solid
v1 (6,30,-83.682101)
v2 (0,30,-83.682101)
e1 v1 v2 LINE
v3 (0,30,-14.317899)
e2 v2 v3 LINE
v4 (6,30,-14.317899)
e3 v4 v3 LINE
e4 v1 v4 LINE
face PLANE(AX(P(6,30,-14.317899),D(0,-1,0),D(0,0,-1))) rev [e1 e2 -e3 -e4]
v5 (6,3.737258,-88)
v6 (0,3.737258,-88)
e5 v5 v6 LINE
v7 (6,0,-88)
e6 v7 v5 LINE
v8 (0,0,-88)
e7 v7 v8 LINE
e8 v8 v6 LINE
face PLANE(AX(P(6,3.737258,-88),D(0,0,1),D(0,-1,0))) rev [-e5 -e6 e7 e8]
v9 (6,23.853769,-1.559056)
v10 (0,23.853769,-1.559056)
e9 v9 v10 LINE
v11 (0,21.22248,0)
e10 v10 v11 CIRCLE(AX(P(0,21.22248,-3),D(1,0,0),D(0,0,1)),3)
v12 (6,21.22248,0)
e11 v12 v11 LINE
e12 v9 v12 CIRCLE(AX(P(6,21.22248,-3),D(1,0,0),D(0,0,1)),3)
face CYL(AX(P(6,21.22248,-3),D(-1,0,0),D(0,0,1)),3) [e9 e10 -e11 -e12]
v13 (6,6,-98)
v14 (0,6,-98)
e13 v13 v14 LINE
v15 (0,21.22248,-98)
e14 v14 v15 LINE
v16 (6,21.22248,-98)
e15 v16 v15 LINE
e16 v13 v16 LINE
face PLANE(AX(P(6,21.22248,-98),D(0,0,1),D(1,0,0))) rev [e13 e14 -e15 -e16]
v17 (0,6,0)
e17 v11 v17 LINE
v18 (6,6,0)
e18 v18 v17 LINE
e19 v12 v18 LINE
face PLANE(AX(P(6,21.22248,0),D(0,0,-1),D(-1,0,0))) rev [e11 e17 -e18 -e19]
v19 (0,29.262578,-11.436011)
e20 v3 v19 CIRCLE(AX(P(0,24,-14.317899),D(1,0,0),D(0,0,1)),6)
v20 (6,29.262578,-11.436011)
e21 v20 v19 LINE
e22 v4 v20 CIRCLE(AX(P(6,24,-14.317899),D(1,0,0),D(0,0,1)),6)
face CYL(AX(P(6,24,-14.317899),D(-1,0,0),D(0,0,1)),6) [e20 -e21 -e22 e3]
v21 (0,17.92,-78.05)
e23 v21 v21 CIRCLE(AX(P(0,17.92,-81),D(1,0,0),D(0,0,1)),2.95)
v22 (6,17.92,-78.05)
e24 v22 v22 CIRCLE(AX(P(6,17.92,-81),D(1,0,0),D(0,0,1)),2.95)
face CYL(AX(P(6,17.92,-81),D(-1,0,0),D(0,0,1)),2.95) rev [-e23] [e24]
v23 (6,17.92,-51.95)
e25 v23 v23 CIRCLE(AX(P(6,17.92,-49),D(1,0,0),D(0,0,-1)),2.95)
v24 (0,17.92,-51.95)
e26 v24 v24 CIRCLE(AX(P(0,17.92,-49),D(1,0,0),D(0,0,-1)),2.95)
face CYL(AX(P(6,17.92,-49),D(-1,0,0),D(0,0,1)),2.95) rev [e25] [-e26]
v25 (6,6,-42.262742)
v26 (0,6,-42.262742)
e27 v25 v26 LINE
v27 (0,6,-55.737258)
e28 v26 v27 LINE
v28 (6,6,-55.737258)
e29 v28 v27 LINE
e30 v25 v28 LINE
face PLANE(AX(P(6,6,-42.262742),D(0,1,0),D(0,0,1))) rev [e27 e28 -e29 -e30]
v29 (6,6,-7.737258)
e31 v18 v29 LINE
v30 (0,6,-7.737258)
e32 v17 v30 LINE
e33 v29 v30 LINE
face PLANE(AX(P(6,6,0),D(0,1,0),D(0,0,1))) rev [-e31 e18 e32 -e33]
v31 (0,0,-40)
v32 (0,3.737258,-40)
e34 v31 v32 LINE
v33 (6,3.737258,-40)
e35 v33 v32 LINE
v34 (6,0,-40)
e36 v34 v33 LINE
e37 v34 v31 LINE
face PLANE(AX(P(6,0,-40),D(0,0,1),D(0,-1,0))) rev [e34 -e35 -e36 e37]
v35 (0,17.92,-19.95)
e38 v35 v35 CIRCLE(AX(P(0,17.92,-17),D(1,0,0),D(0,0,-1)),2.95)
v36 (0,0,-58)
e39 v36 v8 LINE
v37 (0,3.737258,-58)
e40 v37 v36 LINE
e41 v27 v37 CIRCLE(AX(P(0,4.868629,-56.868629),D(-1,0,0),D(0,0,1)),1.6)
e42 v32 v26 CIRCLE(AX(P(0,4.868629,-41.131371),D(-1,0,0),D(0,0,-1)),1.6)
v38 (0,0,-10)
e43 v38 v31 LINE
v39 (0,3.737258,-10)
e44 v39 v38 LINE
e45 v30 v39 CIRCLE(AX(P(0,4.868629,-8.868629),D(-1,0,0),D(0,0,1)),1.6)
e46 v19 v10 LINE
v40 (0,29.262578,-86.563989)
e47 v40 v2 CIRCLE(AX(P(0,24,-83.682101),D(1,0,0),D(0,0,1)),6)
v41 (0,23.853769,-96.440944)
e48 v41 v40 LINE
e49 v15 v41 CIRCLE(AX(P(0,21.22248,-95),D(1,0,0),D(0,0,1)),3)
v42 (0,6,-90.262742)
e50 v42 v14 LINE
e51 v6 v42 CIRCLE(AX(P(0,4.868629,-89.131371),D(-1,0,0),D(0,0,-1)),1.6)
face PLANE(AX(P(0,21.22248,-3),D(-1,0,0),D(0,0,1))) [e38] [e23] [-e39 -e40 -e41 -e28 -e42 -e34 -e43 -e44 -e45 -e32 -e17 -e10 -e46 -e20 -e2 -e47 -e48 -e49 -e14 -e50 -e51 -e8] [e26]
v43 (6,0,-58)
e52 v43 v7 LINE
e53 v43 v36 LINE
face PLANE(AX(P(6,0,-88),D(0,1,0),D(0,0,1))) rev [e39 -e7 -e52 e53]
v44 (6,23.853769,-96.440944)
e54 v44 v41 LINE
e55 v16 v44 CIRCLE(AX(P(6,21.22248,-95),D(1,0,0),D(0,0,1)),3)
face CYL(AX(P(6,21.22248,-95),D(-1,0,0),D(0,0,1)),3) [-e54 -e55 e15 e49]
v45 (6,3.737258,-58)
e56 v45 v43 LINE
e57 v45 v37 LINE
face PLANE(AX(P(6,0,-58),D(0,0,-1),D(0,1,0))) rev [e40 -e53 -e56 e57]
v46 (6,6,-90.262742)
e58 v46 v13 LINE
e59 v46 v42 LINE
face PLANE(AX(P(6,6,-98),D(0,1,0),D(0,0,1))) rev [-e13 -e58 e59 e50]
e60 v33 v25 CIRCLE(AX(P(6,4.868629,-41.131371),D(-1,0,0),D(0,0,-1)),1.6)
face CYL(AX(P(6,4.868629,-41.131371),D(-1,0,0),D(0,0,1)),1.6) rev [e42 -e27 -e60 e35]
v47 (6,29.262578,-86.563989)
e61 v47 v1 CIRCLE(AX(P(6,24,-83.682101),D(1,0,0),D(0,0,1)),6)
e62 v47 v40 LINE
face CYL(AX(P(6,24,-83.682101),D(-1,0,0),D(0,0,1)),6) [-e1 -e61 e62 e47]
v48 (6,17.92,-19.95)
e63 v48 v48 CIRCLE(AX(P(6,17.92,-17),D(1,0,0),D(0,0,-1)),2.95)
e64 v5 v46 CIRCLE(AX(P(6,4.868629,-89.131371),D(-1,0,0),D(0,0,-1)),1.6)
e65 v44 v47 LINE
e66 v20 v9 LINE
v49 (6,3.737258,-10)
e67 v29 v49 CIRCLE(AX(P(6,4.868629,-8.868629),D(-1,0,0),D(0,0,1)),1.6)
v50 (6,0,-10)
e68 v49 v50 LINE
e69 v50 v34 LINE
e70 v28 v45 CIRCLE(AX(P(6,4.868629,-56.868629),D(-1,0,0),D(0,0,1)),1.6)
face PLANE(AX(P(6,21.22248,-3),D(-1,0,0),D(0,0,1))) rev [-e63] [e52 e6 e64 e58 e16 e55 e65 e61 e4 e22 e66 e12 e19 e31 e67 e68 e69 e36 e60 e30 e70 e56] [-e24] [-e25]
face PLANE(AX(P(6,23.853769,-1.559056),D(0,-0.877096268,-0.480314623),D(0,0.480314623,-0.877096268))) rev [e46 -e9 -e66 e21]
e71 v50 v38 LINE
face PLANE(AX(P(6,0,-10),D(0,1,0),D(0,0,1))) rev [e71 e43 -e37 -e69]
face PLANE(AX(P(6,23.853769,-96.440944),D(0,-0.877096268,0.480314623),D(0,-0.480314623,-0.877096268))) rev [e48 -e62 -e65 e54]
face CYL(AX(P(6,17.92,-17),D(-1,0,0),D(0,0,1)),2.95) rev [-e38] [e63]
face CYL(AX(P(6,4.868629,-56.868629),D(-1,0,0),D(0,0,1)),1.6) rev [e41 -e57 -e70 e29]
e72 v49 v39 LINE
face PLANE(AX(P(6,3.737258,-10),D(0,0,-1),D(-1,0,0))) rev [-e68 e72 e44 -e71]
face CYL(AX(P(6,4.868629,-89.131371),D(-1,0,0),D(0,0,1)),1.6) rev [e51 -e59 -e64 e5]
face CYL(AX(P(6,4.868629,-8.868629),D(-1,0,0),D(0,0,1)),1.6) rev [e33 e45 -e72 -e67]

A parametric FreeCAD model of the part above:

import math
import FreeCAD as App
import Part
import Sketcher
from FreeCAD import Vector

doc = App.newDocument("Part")
params = doc.addObject("Spreadsheet::Sheet", "Params")
for row, (alias, value) in enumerate([
    ("sketch1_radius", "3 mm"),
    ("sketch1_radius2", "6 mm"),
    ("sketch1_diameter", "5.9 mm"),
    ("sketch1_radius3", "1.6 mm"),
    ("sketch1_height", "30 mm"),
    ("pad1_length", "6 mm"),
], start=1):
    params.set(f"A{row}", alias)
    params.set(f"B{row}", "=" + value)
    params.setAlias(f"B{row}", alias)

body = doc.addObject("PartDesign::Body", "Body")

# Sketch on YZ plane
sketch1 = doc.addObject("Sketcher::SketchObject", "Sketch")
body.addObject(sketch1)
sketch1.AttachmentSupport = (doc.YZ_Plane, [""])
sketch1.MapMode = "FlatFace"
sketch1.addGeometry(Part.LineSegment(Vector(29.3, -11.4, 0), Vector(23.9, -1.6, 0)), False)
sketch1.addGeometry(Part.ArcOfCircle(Part.Circle(Vector(21.2, -3, 0), Vector(0, 0, 1), 3), math.radians(29), math.radians(90)), False)
sketch1.addGeometry(Part.LineSegment(Vector(21.2, 0, 0), Vector(6, 0, 0)), False)
sketch1.addGeometry(Part.LineSegment(Vector(6, 0, 0), Vector(6, -7.7, 0)), False)
sketch1.addGeometry(Part.ArcOfCircle(Part.Circle(Vector(4.9, -8.9, 0), Vector(0, 0, 1), 1.6), math.radians(-135), math.radians(45)), False)
sketch1.addGeometry(Part.LineSegment(Vector(3.7, -10, 0), Vector(0, -10, 0)), False)
sketch1.addGeometry(Part.LineSegment(Vector(0, -10, 0), Vector(0, -40, 0)), False)
sketch1.addGeometry(Part.LineSegment(Vector(0, -40, 0), Vector(3.7, -40, 0)), False)
sketch1.addGeometry(Part.ArcOfCircle(Part.Circle(Vector(4.9, -41.1, 0), Vector(0, 0, 1), 1.6), math.radians(-45), math.radians(135)), False)
sketch1.addGeometry(Part.LineSegment(Vector(6, -42.3, 0), Vector(6, -55.7, 0)), False)
sketch1.addGeometry(Part.ArcOfCircle(Part.Circle(Vector(4.9, -56.9, 0), Vector(0, 0, 1), 1.6), math.radians(-135), math.radians(45)), False)
sketch1.addGeometry(Part.LineSegment(Vector(3.7, -58, 0), Vector(0, -58, 0)), False)
sketch1.addGeometry(Part.LineSegment(Vector(0, -58, 0), Vector(0, -88, 0)), False)
sketch1.addGeometry(Part.LineSegment(Vector(0, -88, 0), Vector(3.7, -88, 0)), False)
sketch1.addGeometry(Part.ArcOfCircle(Part.Circle(Vector(4.9, -89.1, 0), Vector(0, 0, 1), 1.6), math.radians(-45), math.radians(135)), False)
sketch1.addGeometry(Part.LineSegment(Vector(6, -90.3, 0), Vector(6, -98, 0)), False)
sketch1.addGeometry(Part.LineSegment(Vector(6, -98, 0), Vector(21.2, -98, 0)), False)
sketch1.addGeometry(Part.ArcOfCircle(Part.Circle(Vector(21.2, -95, 0), Vector(0, 0, 1), 3), math.radians(-90), math.radians(-29)), False)
sketch1.addGeometry(Part.LineSegment(Vector(23.9, -96.4, 0), Vector(29.3, -86.6, 0)), False)
sketch1.addGeometry(Part.ArcOfCircle(Part.Circle(Vector(24, -83.7, 0), Vector(0, 0, 1), 6), math.radians(-29), math.radians(0)), False)
sketch1.addGeometry(Part.LineSegment(Vector(30, -83.7, 0), Vector(30, -14.3, 0)), False)
sketch1.addGeometry(Part.ArcOfCircle(Part.Circle(Vector(24, -14.3, 0), Vector(0, 0, 1), 6), math.radians(0), math.radians(29)), False)
sketch1.addGeometry(Part.Circle(Vector(17.9, -81, 0), Vector(0, 0, 1), 3), False)
sketch1.addGeometry(Part.Circle(Vector(17.9, -49, 0), Vector(0, 0, 1), 3), False)
sketch1.addGeometry(Part.Circle(Vector(17.9, -17, 0), Vector(0, 0, 1), 3), False)
sketch1.addConstraint(Sketcher.Constraint("Tangent", 0, 2, 1, 1))
sketch1.addConstraint(Sketcher.Constraint("Tangent", 1, 2, 2, 1))
sketch1.addConstraint(Sketcher.Constraint("Coincident", 2, 2, 3, 1))
sketch1.addConstraint(Sketcher.Constraint("Coincident", 3, 2, 4, 2))
sketch1.addConstraint(Sketcher.Constraint("Coincident", 4, 1, 5, 1))
sketch1.addConstraint(Sketcher.Constraint("Coincident", 5, 2, 6, 1))
sketch1.addConstraint(Sketcher.Constraint("Coincident", 6, 2, 7, 1))
sketch1.addConstraint(Sketcher.Constraint("Coincident", 7, 2, 8, 2))
sketch1.addConstraint(Sketcher.Constraint("Coincident", 8, 1, 9, 1))
sketch1.addConstraint(Sketcher.Constraint("Coincident", 9, 2, 10, 2))
sketch1.addConstraint(Sketcher.Constraint("Coincident", 10, 1, 11, 1))
sketch1.addConstraint(Sketcher.Constraint("Coincident", 11, 2, 12, 1))
sketch1.addConstraint(Sketcher.Constraint("Coincident", 12, 2, 13, 1))
sketch1.addConstraint(Sketcher.Constraint("Coincident", 13, 2, 14, 2))
sketch1.addConstraint(Sketcher.Constraint("Coincident", 14, 1, 15, 1))
sketch1.addConstraint(Sketcher.Constraint("Coincident", 15, 2, 16, 1))
sketch1.addConstraint(Sketcher.Constraint("Tangent", 16, 2, 17, 1))
sketch1.addConstraint(Sketcher.Constraint("Tangent", 17, 2, 18, 1))
sketch1.addConstraint(Sketcher.Constraint("Tangent", 18, 2, 19, 1))
sketch1.addConstraint(Sketcher.Constraint("Tangent", 19, 2, 20, 1))
sketch1.addConstraint(Sketcher.Constraint("Tangent", 20, 2, 21, 1))
sketch1.addConstraint(Sketcher.Constraint("Tangent", 21, 2, 0, 1))
sketch1.addConstraint(Sketcher.Constraint("Horizontal", 2))
sketch1.addConstraint(Sketcher.Constraint("Vertical", 3))
sketch1.addConstraint(Sketcher.Constraint("Horizontal", 5))
sketch1.addConstraint(Sketcher.Constraint("Vertical", 6))
sketch1.addConstraint(Sketcher.Constraint("Horizontal", 7))
sketch1.addConstraint(Sketcher.Constraint("Vertical", 9))
sketch1.addConstraint(Sketcher.Constraint("Horizontal", 11))
sketch1.addConstraint(Sketcher.Constraint("Vertical", 12))
sketch1.addConstraint(Sketcher.Constraint("Horizontal", 13))
sketch1.addConstraint(Sketcher.Constraint("Vertical", 15))
sketch1.addConstraint(Sketcher.Constraint("Horizontal", 16))
sketch1.addConstraint(Sketcher.Constraint("Vertical", 20))
sketch1.addConstraint(Sketcher.Constraint("Equal", 4, 8))
sketch1.addConstraint(Sketcher.Constraint("Equal", 8, 10))
sketch1.addConstraint(Sketcher.Constraint("Equal", 10, 14))
sketch1.addConstraint(Sketcher.Constraint("Equal", 1, 17))
sketch1.addConstraint(Sketcher.Constraint("Equal", 19, 21))
sketch1.addConstraint(Sketcher.Constraint("Equal", 22, 23))
sketch1.addConstraint(Sketcher.Constraint("Equal", 23, 24))
sketch1.addConstraint(Sketcher.Constraint("PointOnObject", 1, 2, -1))
sketch1.addConstraint(Sketcher.Constraint("PointOnObject", 5, 2, -2))
sketch1.addConstraint(Sketcher.Constraint("PointOnObject", 11, 2, -2))
sketch1.addConstraint(Sketcher.Constraint("Vertical", 4, 3, 8, 3))
sketch1.addConstraint(Sketcher.Constraint("Vertical", 8, 3, 10, 3))
sketch1.addConstraint(Sketcher.Constraint("Vertical", 10, 3, 14, 3))
sketch1.addConstraint(Sketcher.Constraint("Vertical", 1, 3, 17, 3))
sketch1.addConstraint(Sketcher.Constraint("Vertical", 22, 3, 23, 3))
sketch1.addConstraint(Sketcher.Constraint("Vertical", 23, 3, 24, 3))
sketch1.addConstraint(Sketcher.Constraint("Vertical", 4, 1, 7, 2))
sketch1.addConstraint(Sketcher.Constraint("Vertical", 3, 2, 8, 1))
sketch1.addConstraint(Sketcher.Constraint("Vertical", 7, 2, 10, 1))
sketch1.addConstraint(Sketcher.Constraint("Vertical", 10, 1, 13, 2))
sketch1.addConstraint(Sketcher.Constraint("Vertical", 9, 2, 14, 1))
sketch1.addConstraint(Sketcher.Constraint("Vertical", 0, 2, 17, 2))
sketch1.addConstraint(Sketcher.Constraint("Equal", 6, 12))
sketch1.addConstraint(Sketcher.Constraint("Equal", 3, 15))
sketch1.addConstraint(Sketcher.Constraint("Radius", 1, 3.0))
sketch1.addConstraint(Sketcher.Constraint("Radius", 19, 6.0))
sketch1.addConstraint(Sketcher.Constraint("Diameter", 22, 5.9))
sketch1.addConstraint(Sketcher.Constraint("Radius", 4, 1.6))
sketch1.addConstraint(Sketcher.Constraint("DistanceY", 6, 2, 6, 1, 30.0))
sketch1.addConstraint(Sketcher.Constraint("DistanceY", 17, 3, -1, 1, 95.0))
sketch1.addConstraint(Sketcher.Constraint("DistanceX", -1, 1, 19, 3, 24.0))
sketch1.addConstraint(Sketcher.Constraint("DistanceY", 22, 3, -1, 1, 81.0))
sketch1.addConstraint(Sketcher.Constraint("DistanceY", 23, 3, -1, 1, 49.0))
sketch1.addConstraint(Sketcher.Constraint("DistanceY", 24, 3, -1, 1, 17.0))
sketch1.addConstraint(Sketcher.Constraint("DistanceX", -1, 1, 2, 2, 6.0))
sketch1.addConstraint(Sketcher.Constraint("DistanceY", 4, 1, -1, 1, 10.0))
sketch1.addConstraint(Sketcher.Constraint("DistanceX", -1, 1, 22, 3, 17.92))
sketch1.addConstraint(Sketcher.Constraint("DistanceY", 20, 1, 20, 2, 69.364202))
sketch1.addConstraint(Sketcher.Constraint("DistanceX", 2, 2, 2, 1, 15.22248))
sketch1.addConstraint(Sketcher.Constraint("DistanceX", 5, 2, 5, 1, 3.737258))
sketch1.addConstraint(Sketcher.Constraint("DistanceX", -1, 1, 4, 3, 4.868629))
sketch1.setExpression("Constraints[58]", "Params.sketch1_radius")
sketch1.setExpression("Constraints[59]", "Params.sketch1_radius2")
sketch1.setExpression("Constraints[60]", "Params.sketch1_diameter")
sketch1.setExpression("Constraints[61]", "Params.sketch1_radius3")
sketch1.setExpression("Constraints[62]", "Params.sketch1_height")
pad1 = doc.addObject("PartDesign::Pad", "Pad")
body.addObject(pad1)
pad1.Profile = sketch1
pad1.setExpression("Length", "Params.pad1_length")

doc.recompute()
